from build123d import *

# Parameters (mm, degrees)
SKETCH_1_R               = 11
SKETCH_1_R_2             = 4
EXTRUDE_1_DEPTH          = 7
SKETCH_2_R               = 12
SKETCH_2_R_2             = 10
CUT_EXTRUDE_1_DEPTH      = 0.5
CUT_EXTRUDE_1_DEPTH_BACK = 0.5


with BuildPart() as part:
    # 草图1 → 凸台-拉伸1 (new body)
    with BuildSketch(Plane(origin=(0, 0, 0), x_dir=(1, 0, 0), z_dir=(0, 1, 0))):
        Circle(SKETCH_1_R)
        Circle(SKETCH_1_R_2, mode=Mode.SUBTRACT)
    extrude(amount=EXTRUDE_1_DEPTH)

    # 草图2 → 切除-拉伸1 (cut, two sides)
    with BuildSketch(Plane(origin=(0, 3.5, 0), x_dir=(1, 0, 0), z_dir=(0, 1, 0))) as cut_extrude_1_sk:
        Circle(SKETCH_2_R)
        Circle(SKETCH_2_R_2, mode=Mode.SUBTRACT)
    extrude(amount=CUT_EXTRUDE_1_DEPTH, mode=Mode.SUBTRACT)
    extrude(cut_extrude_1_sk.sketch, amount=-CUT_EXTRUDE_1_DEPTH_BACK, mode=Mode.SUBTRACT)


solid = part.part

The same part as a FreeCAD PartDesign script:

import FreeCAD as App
import Part
import Sketcher

doc = App.newDocument("Part")
body = doc.addObject("PartDesign::Body", "Body")

sketch1 = doc.addObject("Sketcher::SketchObject", "Sketch")
body.addObject(sketch1)
sketch1.AttachmentSupport = (doc.XZ_Plane, [""])
sketch1.MapMode = "FlatFace"
sketch1.addGeometry(Part.Circle(App.Vector(0, 0, 0), App.Vector(0, 0, 1), 11), False)
sketch1.addGeometry(Part.Circle(App.Vector(0, 0, 0), App.Vector(0, 0, 1), 4), False)
sketch1.addConstraint(Sketcher.Constraint("Coincident", 0, 3, -1, 1))
sketch1.addConstraint(Sketcher.Constraint("Coincident", 1, 3, -1, 1))
sketch1.addConstraint(Sketcher.Constraint("Diameter", 0, 22.0))
sketch1.addConstraint(Sketcher.Constraint("Diameter", 1, 8.0))
pad1 = doc.addObject("PartDesign::Pad", "Pad")
body.addObject(pad1)
pad1.Profile = sketch1
pad1.Length = 7
pad1.Reversed = True

sketch2 = doc.addObject("Sketcher::SketchObject", "Sketch001")
body.addObject(sketch2)
sketch2.AttachmentSupport = (doc.XZ_Plane, [""])
sketch2.MapMode = "FlatFace"
sketch2.AttachmentOffset = App.Placement(App.Vector(0, 0, -3.5), App.Rotation())
sketch2.addGeometry(Part.Circle(App.Vector(0, 0, 0), App.Vector(0, 0, 1), 12), False)
sketch2.addGeometry(Part.Circle(App.Vector(0, 0, 0), App.Vector(0, 0, 1), 10), False)
sketch2.addConstraint(Sketcher.Constraint("Coincident", 0, 3, -1, 1))
sketch2.addConstraint(Sketcher.Constraint("Coincident", 1, 3, -1, 1))
sketch2.addConstraint(Sketcher.Constraint("Diameter", 0, 24.0))
sketch2.addConstraint(Sketcher.Constraint("Diameter", 1, 20.0))
pocket1 = doc.addObject("PartDesign::Pocket", "Pocket")
body.addObject(pocket1)
pocket1.Profile = sketch2
pocket1.Type = "TwoLengths"
pocket1.Length = 0.5
pocket1.Length2 = 0.5

doc.recompute()
